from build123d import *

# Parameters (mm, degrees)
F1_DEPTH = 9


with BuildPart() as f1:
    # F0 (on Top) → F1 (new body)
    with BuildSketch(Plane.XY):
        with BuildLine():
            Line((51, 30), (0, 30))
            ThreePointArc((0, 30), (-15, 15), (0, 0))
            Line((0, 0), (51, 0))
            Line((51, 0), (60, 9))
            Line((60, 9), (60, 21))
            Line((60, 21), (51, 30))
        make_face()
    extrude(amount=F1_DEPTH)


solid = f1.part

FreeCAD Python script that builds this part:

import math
import FreeCAD as App
import Part
import Sketcher
from FreeCAD import Vector
Q = App.Units.Quantity

doc = App.newDocument("Part")
body = doc.addObject("PartDesign::Body", "Body")

sketch1 = body.newObject("Sketcher::SketchObject", "Sketch")
sketch1.AttachmentSupport = (doc.getObject("XY_Plane"), [""])
sketch1.MapMode = "FlatFace"
sketch1.addGeometry([
    Part.LineSegment(Vector(51, 30, 0), Vector(0, 30, 0)),
    Part.ArcOfCircle(Part.Circle(Vector(0, 15, 0), Vector(0, 0, 1), 15), math.radians(90), math.radians(270)),
    Part.LineSegment(Vector(0, 0, 0), Vector(51, 0, 0)),
    Part.LineSegment(Vector(51, 0, 0), Vector(60, 9, 0)),
    Part.LineSegment(Vector(60, 9, 0), Vector(60, 21, 0)),
    Part.LineSegment(Vector(60, 21, 0), Vector(51, 30, 0)),
], False)
sketch1.addConstraint([
    Sketcher.Constraint("Tangent", 0, 2, 1, 1),
    Sketcher.Constraint("Tangent", 1, 2, 2, 1),
    Sketcher.Constraint("Coincident", 2, 2, 3, 1),
    Sketcher.Constraint("Coincident", 3, 2, 4, 1),
    Sketcher.Constraint("Coincident", 4, 2, 5, 1),
    Sketcher.Constraint("Coincident", 5, 2, 0, 1),
    Sketcher.Constraint("Horizontal", 0),
    Sketcher.Constraint("Horizontal", 2),
    Sketcher.Constraint("Vertical", 4),
    Sketcher.Constraint("Coincident", 1, 2, -1, 1),
    Sketcher.Constraint("Perpendicular", 3, 5),
    Sketcher.Constraint("Vertical", 2, 2, 5, 2),
    Sketcher.Constraint("Equal", 3, 5),
    Sketcher.Constraint("Radius", 1, Q("15 mm")),
    Sketcher.Constraint("DistanceX", 0, 2, 0, 1, Q("51 mm")),
    Sketcher.Constraint("DistanceY", 4, 1, 4, 2, Q("12 mm")),
])
pad1 = body.newObject("PartDesign::Pad", "Pad")
pad1.Profile = sketch1
pad1.Length = 9

doc.recompute()
